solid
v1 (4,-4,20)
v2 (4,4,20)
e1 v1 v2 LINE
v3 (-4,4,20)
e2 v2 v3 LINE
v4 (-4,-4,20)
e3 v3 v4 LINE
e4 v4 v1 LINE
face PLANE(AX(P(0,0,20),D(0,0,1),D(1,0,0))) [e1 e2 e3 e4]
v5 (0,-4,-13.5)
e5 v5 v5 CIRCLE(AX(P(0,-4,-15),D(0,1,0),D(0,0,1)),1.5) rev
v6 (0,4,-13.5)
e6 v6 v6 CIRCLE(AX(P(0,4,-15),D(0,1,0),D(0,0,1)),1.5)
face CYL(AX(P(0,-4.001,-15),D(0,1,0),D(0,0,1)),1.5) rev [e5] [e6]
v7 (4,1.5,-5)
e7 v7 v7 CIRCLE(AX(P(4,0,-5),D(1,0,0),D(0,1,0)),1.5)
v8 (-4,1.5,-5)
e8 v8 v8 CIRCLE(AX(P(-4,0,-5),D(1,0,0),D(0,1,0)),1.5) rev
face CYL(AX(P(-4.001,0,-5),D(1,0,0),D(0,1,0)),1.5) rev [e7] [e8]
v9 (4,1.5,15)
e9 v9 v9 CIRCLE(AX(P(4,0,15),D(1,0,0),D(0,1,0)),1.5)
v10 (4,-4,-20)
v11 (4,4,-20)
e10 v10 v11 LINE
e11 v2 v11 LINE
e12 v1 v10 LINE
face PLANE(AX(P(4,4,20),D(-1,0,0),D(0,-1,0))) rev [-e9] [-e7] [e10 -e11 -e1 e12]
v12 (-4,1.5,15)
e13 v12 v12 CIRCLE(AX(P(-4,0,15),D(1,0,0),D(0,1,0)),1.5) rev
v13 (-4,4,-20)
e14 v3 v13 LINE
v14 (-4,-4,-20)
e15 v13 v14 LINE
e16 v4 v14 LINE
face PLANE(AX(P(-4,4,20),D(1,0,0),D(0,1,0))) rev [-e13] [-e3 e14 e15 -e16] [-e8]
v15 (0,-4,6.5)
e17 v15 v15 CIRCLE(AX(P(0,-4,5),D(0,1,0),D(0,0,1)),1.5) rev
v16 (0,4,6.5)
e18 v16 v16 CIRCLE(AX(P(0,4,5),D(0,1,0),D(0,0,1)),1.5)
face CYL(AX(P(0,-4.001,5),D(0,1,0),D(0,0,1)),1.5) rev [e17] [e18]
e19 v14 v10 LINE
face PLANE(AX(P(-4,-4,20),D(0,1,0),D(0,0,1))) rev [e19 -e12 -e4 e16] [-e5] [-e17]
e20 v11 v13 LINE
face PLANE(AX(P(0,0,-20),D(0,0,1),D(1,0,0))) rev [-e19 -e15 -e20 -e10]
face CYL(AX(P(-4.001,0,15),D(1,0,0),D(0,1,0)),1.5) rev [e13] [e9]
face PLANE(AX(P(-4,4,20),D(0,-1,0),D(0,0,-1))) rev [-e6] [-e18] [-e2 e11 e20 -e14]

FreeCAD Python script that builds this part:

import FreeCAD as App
import Part
import Sketcher

V = App.Vector
Q = App.Units.Quantity


def add_polygon(sketch, points):
    """Adds a closed chain of lines whose ends are joined by coincident constraints."""
    first, n = sketch.GeometryCount, len(points)
    for a, b in zip(points, points[1:] + points[:1]):
        sketch.addGeometry(Part.LineSegment(App.Vector(*a, 0), App.Vector(*b, 0)), False)
    for i in range(n):
        sketch.addConstraint(Sketcher.Constraint("Coincident", first + i, 2, first + (i + 1) % n, 1))

doc = App.newDocument("Part")
params = doc.addObject("Spreadsheet::Sheet", "Params")
for row, (alias, value) in enumerate([
    ("sketch1_width", "8 mm"),
    ("pad1_length", "40 mm"),
    ("sketch2_diameter", "3 mm"),
    ("sketch3_diameter", "3 mm"),
    ("sketch4_diameter", "3 mm"),
    ("sketch5_diameter", "3 mm"),
], start=1):
    params.set(f"A{row}", alias)
    params.set(f"B{row}", "=" + value)
    params.setAlias(f"B{row}", alias)

body = doc.addObject("PartDesign::Body", "Body")

sketch1 = doc.addObject("Sketcher::SketchObject", "Sketch")
body.addObject(sketch1)
sketch1.AttachmentSupport = (doc.XY_Plane, [""])
sketch1.MapMode = "FlatFace"
add_polygon(sketch1, [(-4, 4), (-4, -4), (4, -4), (4, 4)])
sketch1.addConstraint([
    Sketcher.Constraint("Vertical", 0),
    Sketcher.Constraint("Horizontal", 1),
    Sketcher.Constraint("Vertical", 2),
    Sketcher.Constraint("Horizontal", 3),
    Sketcher.Constraint("Symmetric", 0, 2, 2, 2, -1, 1),
    Sketcher.Constraint("Equal", 3, 0),
    Sketcher.Constraint("DistanceX", 1, 1, 1, 2, Q("8 mm")),
])
sketch1.setExpression("Constraints[10]", "Params.sketch1_width")
pad1 = doc.addObject("PartDesign::Pad", "Pad")
body.addObject(pad1)
pad1.Profile = sketch1
pad1.setExpression("Length", "Params.pad1_length")
pad1.Midplane = True

sketch2 = doc.addObject("Sketcher::SketchObject", "Sketch001")
body.addObject(sketch2)
sketch2.AttachmentSupport = (doc.YZ_Plane, [""])
sketch2.MapMode = "FlatFace"
sketch2.AttachmentOffset = App.Placement(V(0, 0, 4), App.Rotation())
sketch2.addGeometry(Part.Circle(V(0, 15, 0), V(0, 0, 1), 1.5), False)
sketch2.addConstraint([
    Sketcher.Constraint("PointOnObject", 0, 3, -2),
    Sketcher.Constraint("Diameter", 0, Q("3 mm")),
    Sketcher.Constraint("DistanceY", -1, 1, 0, 3, Q("15 mm")),
])
sketch2.setExpression("Constraints[1]", "Params.sketch2_diameter")
pocket1 = doc.addObject("PartDesign::Pocket", "Pocket")
body.addObject(pocket1)
pocket1.Profile = sketch2
pocket1.Type = "UpToFirst"

sketch3 = doc.addObject("Sketcher::SketchObject", "Sketch002")
body.addObject(sketch3)
sketch3.AttachmentSupport = (doc.YZ_Plane, [""])
sketch3.MapMode = "FlatFace"
sketch3.AttachmentOffset = App.Placement(V(0, 0, 4), App.Rotation())
sketch3.addGeometry(Part.Circle(V(0, -5, 0), V(0, 0, 1), 1.5), False)
sketch3.addConstraint([
    Sketcher.Constraint("PointOnObject", 0, 3, -2),
    Sketcher.Constraint("Diameter", 0, Q("3 mm")),
    Sketcher.Constraint("DistanceY", 0, 3, -1, 1, Q("5 mm")),
])
sketch3.setExpression("Constraints[1]", "Params.sketch3_diameter")
pocket2 = doc.addObject("PartDesign::Pocket", "Pocket001")
body.addObject(pocket2)
pocket2.Profile = sketch3
pocket2.Type = "UpToFirst"

sketch4 = doc.addObject("Sketcher::SketchObject", "Sketch003")
body.addObject(sketch4)
sketch4.AttachmentSupport = (doc.XZ_Plane, [""])
sketch4.MapMode = "FlatFace"
sketch4.AttachmentOffset = App.Placement(V(0, 0, -4), App.Rotation())
sketch4.addGeometry(Part.Circle(V(0, -15, 0), V(0, 0, 1), 1.5), False)
sketch4.addConstraint([
    Sketcher.Constraint("PointOnObject", 0, 3, -2),
    Sketcher.Constraint("Diameter", 0, Q("3 mm")),
    Sketcher.Constraint("DistanceY", 0, 3, -1, 1, Q("15 mm")),
])
sketch4.setExpression("Constraints[1]", "Params.sketch4_diameter")
pocket3 = doc.addObject("PartDesign::Pocket", "Pocket002")
body.addObject(pocket3)
pocket3.Profile = sketch4
pocket3.Type = "UpToFirst"
pocket3.Reversed = True

sketch5 = doc.addObject("Sketcher::SketchObject", "Sketch004")
body.addObject(sketch5)
sketch5.AttachmentSupport = (doc.XZ_Plane, [""])
sketch5.MapMode = "FlatFace"
sketch5.AttachmentOffset = App.Placement(V(0, 0, -4), App.Rotation())
sketch5.addGeometry(Part.Circle(V(0, 5, 0), V(0, 0, 1), 1.5), False)
sketch5.addConstraint([
    Sketcher.Constraint("PointOnObject", 0, 3, -2),
    Sketcher.Constraint("Diameter", 0, Q("3 mm")),
    Sketcher.Constraint("DistanceY", -1, 1, 0, 3, Q("5 mm")),
])
sketch5.setExpression("Constraints[1]", "Params.sketch5_diameter")
pocket4 = doc.addObject("PartDesign::Pocket", "Pocket003")
body.addObject(pocket4)
pocket4.Profile = sketch5
pocket4.Type = "UpToFirst"
pocket4.Reversed = True

doc.recompute()
